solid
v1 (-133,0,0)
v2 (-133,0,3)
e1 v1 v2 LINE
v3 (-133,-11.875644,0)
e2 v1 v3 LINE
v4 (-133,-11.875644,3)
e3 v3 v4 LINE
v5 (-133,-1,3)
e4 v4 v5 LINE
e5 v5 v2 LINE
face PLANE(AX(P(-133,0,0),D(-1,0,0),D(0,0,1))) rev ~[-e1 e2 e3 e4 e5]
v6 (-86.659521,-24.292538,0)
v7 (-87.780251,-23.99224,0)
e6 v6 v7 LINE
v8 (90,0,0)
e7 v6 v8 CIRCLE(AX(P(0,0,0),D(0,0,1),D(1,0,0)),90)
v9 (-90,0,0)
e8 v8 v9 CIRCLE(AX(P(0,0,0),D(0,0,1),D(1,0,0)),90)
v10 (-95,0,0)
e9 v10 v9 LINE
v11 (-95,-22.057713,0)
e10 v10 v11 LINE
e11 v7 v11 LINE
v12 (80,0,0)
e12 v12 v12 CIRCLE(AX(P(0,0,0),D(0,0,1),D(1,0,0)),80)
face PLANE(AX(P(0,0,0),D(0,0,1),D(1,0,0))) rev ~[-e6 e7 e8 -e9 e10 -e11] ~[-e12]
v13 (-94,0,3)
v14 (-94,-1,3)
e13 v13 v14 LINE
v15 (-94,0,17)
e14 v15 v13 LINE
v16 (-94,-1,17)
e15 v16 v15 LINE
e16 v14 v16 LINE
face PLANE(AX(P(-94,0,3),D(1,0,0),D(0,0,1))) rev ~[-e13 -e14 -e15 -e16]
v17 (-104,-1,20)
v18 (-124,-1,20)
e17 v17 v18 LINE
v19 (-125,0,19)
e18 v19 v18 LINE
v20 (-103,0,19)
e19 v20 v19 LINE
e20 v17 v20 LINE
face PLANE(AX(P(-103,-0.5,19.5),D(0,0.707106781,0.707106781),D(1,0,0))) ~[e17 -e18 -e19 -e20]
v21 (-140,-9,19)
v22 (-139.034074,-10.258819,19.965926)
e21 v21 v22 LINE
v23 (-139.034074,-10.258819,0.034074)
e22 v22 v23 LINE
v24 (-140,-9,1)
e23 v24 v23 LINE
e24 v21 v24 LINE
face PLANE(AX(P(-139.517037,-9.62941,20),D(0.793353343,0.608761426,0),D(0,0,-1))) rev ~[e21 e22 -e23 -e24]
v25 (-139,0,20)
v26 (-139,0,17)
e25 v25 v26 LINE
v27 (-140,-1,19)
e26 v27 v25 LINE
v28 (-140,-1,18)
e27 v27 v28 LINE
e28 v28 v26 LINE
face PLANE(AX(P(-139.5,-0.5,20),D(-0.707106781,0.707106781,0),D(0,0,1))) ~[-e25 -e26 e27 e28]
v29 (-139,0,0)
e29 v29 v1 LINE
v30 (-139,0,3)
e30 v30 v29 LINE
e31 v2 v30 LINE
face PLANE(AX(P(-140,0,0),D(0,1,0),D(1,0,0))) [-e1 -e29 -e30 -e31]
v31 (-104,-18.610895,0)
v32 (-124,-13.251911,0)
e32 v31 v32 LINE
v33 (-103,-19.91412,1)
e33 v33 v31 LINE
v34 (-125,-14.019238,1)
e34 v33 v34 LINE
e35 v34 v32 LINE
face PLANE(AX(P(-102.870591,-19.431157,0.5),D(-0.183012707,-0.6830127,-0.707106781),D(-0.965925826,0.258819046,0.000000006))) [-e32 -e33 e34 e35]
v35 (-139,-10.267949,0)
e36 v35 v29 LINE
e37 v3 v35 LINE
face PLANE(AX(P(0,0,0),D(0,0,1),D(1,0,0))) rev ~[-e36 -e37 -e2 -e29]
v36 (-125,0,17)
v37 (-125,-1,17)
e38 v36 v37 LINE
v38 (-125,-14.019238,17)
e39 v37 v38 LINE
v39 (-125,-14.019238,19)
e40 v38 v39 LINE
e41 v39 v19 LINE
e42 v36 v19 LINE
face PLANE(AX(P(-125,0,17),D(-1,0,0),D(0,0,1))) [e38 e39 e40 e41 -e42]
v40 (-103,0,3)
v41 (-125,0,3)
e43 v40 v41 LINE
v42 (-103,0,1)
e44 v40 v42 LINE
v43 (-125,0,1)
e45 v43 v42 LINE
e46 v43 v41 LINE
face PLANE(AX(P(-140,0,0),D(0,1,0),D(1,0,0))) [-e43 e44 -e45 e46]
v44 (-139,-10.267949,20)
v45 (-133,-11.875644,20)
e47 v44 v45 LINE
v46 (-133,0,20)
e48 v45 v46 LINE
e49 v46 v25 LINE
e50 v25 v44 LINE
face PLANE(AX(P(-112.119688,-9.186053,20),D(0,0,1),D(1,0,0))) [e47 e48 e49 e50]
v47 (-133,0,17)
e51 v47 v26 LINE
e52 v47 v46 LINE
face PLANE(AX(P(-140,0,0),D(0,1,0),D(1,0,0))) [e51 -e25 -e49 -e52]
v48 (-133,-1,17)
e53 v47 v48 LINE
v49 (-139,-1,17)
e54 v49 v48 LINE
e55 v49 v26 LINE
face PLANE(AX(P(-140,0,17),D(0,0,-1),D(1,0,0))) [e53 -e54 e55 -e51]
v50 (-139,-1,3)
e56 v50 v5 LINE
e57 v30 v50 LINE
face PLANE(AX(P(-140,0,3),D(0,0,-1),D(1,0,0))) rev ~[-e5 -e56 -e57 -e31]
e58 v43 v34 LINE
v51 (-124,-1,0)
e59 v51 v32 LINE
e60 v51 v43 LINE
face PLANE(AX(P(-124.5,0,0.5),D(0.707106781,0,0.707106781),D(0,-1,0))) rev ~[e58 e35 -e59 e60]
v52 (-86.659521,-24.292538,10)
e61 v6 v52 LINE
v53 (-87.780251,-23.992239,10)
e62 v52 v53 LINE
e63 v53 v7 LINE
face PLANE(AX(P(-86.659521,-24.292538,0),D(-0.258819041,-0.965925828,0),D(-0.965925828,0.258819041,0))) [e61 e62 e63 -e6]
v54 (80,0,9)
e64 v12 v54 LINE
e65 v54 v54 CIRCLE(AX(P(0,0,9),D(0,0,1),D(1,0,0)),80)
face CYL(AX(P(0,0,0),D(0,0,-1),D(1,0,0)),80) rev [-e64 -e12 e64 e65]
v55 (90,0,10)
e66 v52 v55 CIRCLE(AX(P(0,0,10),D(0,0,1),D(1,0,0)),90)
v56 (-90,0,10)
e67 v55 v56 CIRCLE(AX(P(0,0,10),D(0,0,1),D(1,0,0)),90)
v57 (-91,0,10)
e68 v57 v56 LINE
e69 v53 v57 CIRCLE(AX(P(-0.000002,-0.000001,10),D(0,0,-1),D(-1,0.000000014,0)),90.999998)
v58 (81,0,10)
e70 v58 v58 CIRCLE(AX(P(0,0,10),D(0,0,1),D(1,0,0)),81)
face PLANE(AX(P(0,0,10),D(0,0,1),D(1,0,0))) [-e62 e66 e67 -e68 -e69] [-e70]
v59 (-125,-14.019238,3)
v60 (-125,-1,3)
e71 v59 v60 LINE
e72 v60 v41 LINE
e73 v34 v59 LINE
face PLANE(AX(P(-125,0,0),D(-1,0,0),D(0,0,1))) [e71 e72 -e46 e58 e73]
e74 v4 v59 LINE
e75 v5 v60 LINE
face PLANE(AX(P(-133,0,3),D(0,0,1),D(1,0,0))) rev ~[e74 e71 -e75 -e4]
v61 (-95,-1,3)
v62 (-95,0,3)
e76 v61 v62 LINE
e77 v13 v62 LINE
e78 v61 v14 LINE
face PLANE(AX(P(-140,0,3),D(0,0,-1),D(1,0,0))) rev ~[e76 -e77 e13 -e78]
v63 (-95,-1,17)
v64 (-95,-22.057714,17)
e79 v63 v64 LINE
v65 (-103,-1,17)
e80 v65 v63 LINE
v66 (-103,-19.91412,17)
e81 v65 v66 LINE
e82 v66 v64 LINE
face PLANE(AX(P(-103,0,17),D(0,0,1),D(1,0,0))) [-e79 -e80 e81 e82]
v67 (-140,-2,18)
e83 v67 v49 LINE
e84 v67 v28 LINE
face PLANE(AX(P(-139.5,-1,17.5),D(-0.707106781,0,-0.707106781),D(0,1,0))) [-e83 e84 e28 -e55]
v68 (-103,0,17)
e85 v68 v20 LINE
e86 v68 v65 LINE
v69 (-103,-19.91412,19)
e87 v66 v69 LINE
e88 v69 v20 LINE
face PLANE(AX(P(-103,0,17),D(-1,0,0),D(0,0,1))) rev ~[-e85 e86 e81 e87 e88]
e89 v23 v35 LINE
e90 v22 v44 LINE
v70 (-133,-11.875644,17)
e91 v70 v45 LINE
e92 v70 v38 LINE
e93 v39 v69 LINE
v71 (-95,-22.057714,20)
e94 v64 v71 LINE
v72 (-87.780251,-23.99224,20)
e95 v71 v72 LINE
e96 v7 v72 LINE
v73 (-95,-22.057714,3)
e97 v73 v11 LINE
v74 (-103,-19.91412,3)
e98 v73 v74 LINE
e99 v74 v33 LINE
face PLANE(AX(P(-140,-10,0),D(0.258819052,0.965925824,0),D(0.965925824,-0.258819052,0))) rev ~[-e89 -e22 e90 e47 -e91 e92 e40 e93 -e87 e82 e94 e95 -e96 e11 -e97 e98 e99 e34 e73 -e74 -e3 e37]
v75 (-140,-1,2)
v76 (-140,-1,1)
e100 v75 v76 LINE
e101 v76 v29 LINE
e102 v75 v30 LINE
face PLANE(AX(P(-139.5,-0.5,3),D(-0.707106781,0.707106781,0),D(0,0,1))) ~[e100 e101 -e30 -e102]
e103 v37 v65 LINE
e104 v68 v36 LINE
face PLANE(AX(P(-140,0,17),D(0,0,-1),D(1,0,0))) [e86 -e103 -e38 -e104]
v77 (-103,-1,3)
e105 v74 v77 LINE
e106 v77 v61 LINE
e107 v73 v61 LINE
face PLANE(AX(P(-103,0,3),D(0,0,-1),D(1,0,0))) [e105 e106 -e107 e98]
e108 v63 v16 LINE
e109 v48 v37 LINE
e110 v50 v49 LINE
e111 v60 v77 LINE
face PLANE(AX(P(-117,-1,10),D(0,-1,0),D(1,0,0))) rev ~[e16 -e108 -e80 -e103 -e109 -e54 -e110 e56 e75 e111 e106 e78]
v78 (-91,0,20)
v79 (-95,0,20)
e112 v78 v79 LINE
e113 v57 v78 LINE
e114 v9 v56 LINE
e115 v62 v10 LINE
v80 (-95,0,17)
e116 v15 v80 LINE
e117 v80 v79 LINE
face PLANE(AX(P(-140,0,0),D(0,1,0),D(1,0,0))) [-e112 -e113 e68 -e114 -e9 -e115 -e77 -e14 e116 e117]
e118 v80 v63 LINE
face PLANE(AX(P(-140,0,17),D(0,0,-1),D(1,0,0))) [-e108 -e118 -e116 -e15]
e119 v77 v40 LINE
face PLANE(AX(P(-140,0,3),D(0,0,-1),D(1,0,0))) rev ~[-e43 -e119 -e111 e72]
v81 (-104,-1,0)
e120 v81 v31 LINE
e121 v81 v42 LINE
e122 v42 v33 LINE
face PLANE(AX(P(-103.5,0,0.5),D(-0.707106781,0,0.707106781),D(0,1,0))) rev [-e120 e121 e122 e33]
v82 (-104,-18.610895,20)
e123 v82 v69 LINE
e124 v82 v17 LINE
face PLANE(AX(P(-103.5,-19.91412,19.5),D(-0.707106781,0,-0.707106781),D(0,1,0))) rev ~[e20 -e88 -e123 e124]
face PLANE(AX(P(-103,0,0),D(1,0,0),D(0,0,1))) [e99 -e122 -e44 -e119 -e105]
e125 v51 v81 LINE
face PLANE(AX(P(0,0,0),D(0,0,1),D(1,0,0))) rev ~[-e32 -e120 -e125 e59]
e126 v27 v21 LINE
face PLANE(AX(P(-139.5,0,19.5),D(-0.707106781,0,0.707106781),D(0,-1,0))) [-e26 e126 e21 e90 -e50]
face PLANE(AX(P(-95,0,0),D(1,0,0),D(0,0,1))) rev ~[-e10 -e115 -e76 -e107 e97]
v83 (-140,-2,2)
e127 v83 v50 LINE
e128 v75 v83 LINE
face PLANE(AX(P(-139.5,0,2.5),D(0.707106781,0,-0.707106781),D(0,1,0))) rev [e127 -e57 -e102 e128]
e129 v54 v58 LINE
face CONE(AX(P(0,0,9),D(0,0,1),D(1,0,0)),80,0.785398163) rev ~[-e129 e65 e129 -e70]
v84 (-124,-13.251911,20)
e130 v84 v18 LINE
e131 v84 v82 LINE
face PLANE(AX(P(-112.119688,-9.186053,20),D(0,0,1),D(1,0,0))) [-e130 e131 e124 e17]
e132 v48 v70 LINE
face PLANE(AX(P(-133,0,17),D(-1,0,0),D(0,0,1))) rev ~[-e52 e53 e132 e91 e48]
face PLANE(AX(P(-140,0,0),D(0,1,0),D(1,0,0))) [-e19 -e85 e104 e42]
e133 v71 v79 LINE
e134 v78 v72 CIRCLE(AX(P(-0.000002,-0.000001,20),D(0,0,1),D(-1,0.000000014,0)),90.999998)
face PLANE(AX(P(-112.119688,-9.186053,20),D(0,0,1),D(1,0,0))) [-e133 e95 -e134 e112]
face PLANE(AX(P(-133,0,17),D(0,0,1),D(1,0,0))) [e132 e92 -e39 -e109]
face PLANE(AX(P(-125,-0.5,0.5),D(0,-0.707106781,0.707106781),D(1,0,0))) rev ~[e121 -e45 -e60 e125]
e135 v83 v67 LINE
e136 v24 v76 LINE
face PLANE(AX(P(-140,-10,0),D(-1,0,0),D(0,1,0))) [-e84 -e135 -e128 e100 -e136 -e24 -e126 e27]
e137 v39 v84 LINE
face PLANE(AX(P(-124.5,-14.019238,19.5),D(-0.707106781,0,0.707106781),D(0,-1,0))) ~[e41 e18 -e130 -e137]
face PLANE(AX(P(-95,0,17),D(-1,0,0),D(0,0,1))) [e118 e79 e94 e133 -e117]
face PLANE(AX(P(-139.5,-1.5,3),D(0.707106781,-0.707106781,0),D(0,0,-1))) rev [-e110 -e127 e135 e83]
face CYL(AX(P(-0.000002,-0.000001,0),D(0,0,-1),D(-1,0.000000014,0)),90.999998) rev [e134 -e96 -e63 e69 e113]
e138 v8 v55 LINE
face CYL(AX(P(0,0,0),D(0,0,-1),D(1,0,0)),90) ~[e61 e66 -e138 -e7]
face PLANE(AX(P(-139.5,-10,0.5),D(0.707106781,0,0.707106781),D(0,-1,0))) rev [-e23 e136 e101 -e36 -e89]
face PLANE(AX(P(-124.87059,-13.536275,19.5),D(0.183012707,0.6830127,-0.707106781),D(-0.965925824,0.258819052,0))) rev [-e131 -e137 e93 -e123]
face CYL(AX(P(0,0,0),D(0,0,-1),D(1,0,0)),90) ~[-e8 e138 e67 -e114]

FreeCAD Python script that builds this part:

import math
import FreeCAD as App
import Part
import Sketcher
from FreeCAD import Vector
Q = App.Units.Quantity


def edges_at(feature, points):
    """Names of the edges that pass closest to the given points."""
    edges = feature.Shape.Edges
    near = lambda p: min(range(len(edges)), key=lambda i: edges[i].distToShape(Part.Vertex(*p))[0])
    return sorted({f"Edge{near(p) + 1}" for p in points})

doc = App.newDocument("Part")
params = doc.addObject("Spreadsheet::Sheet", "Params")
for row, (alias, value) in enumerate([
    ("sketch1_diameter", "180 mm"),
    ("sketch1_diameter2", "160 mm"),
    ("pad1_length", "10 mm"),
    ("sketch2_width", "50 mm"),
    ("sketch2_height", "10 mm"),
    ("pad2_length", "10 mm"),
    ("sketch3_width", "49 mm"),
    ("sketch3_height", "10 mm"),
    ("pad3_length", "20 mm"),
    ("sketch4_width", "8 mm"),
    ("sketch4_height", "3 mm"),
    ("pocket1_length", "52 mm"),
    ("sketch5_width", "46 mm"),
    ("sketch5_height", "14 mm"),
    ("pocket2_length", "2 mm"),
    ("chamfer_size", "1 mm"),
    ("chamfer2_size", "1 mm"),
    ("chamfer3_size", "1 mm"),
    ("chamfer4_size", "1 mm"),
], start=1):
    params.set(f"A{row}", alias)
    params.set(f"B{row}", "=" + value)
    params.setAlias(f"B{row}", alias)

body = doc.addObject("PartDesign::Body", "Body")

# Sketch on XY plane
sketch1 = body.newObject("Sketcher::SketchObject", "Sketch")
sketch1.AttachmentSupport = (doc.getObject("XY_Plane"), [""])
sketch1.MapMode = "FlatFace"
sketch1.addGeometry(Part.Circle(Vector(0, 0, 0), Vector(0, 0, 1), 90), False)
sketch1.addGeometry(Part.Circle(Vector(0, 0, 0), Vector(0, 0, 1), 80), False)
sketch1.addConstraint(Sketcher.Constraint("Coincident", 0, 3, -1, 1))
sketch1.addConstraint(Sketcher.Constraint("Coincident", 1, 3, -1, 1))
sketch1.addConstraint(Sketcher.Constraint("Diameter", 0, Q("180 mm")))
sketch1.addConstraint(Sketcher.Constraint("Diameter", 1, Q("160 mm")))
sketch1.setExpression("Constraints[2]", "Params.sketch1_diameter")
sketch1.setExpression("Constraints[3]", "Params.sketch1_diameter2")
pad1 = body.newObject("PartDesign::Pad", "Pad")
pad1.Profile = sketch1
pad1.setExpression("Length", "Params.pad1_length")

# Sketch on XY plane
sketch2 = body.newObject("Sketcher::SketchObject", "Sketch001")
sketch2.AttachmentSupport = (doc.getObject("XY_Plane"), [""])
sketch2.MapMode = "FlatFace"
sketch2.addGeometry(Part.LineSegment(Vector(-140, -10, 0), Vector(-86.659521, -24.292538, 0)), False)
sketch2.addGeometry(Part.ArcOfCircle(Part.Circle(Vector(0.000027, 0.000004, 0), Vector(0, 0, 1), 90.000027), math.radians(-179.999997), math.radians(-164.340669)), False)
sketch2.addGeometry(Part.LineSegment(Vector(-90, 0, 0), Vector(-140, 0, 0)), False)
sketch2.addGeometry(Part.LineSegment(Vector(-140, 0, 0), Vector(-140, -10, 0)), False)
sketch2.addConstraint(Sketcher.Constraint("Coincident", 0, 2, 1, 2))
sketch2.addConstraint(Sketcher.Constraint("Coincident", 1, 1, 2, 1))
sketch2.addConstraint(Sketcher.Constraint("Coincident", 2, 2, 3, 1))
sketch2.addConstraint(Sketcher.Constraint("Coincident", 3, 2, 0, 1))
sketch2.addConstraint(Sketcher.Constraint("Horizontal", 2))
sketch2.addConstraint(Sketcher.Constraint("Vertical", 3))
sketch2.addConstraint(Sketcher.Constraint("PointOnObject", 1, 1, -1))
sketch2.addConstraint(Sketcher.Constraint("DistanceX", 2, 2, 2, 1, Q("50 mm")))
sketch2.addConstraint(Sketcher.Constraint("DistanceY", 3, 2, 3, 1, Q("10 mm")))
sketch2.addConstraint(Sketcher.Constraint("Angle", 0, Q("-15 deg")))
sketch2.addConstraint(Sketcher.Constraint("DistanceX", 1, 1, -1, 1, Q("90 mm")))
sketch2.addConstraint(Sketcher.Constraint("Radius", 1, Q("90.000027 mm")))
sketch2.addConstraint(Sketcher.Constraint("DistanceX", 0, 2, -1, 1, Q("86.659521 mm")))
sketch2.setExpression("Constraints[7]", "Params.sketch2_width")
sketch2.setExpression("Constraints[8]", "Params.sketch2_height")
pad2 = body.newObject("PartDesign::Pad", "Pad001")
pad2.Profile = sketch2
pad2.setExpression("Length", "Params.pad2_length")

# Sketch on XY plane
sketch3 = body.newObject("Sketcher::SketchObject", "Sketch002")
sketch3.AttachmentSupport = (doc.getObject("XY_Plane"), [""])
sketch3.MapMode = "FlatFace"
sketch3.addGeometry(Part.LineSegment(Vector(-91, 0, 0), Vector(-140, 0, 0)), False)
sketch3.addGeometry(Part.LineSegment(Vector(-140, 0, 0), Vector(-140, -10, 0)), False)
sketch3.addGeometry(Part.LineSegment(Vector(-140, -10, 0), Vector(-87.780251, -23.99224, 0)), False)
sketch3.addGeometry(Part.ArcOfCircle(Part.Circle(Vector(-0.000002, -0.000001, 0), Vector(0, 0, 1), 90.999998), math.radians(179.999999), math.radians(195.286809)), False)
sketch3.addConstraint(Sketcher.Constraint("Coincident", 0, 2, 1, 1))
sketch3.addConstraint(Sketcher.Constraint("Coincident", 1, 2, 2, 1))
sketch3.addConstraint(Sketcher.Constraint("Coincident", 2, 2, 3, 2))
sketch3.addConstraint(Sketcher.Constraint("Coincident", 3, 1, 0, 1))
sketch3.addConstraint(Sketcher.Constraint("Horizontal", 0))
sketch3.addConstraint(Sketcher.Constraint("Vertical", 1))
sketch3.addConstraint(Sketcher.Constraint("Coincident", 3, 3, -1, 1))
sketch3.addConstraint(Sketcher.Constraint("PointOnObject", 0, 2, -1))
sketch3.addConstraint(Sketcher.Constraint("DistanceX", 0, 2, 0, 1, Q("49 mm")))
sketch3.addConstraint(Sketcher.Constraint("DistanceY", 1, 2, 1, 1, Q("10 mm")))
sketch3.addConstraint(Sketcher.Constraint("Angle", 2, Q("-15 deg")))
sketch3.addConstraint(Sketcher.Constraint("DistanceX", 0, 2, -1, 1, Q("140 mm")))
sketch3.setExpression("Constraints[8]", "Params.sketch3_width")
sketch3.setExpression("Constraints[9]", "Params.sketch3_height")
pad3 = body.newObject("PartDesign::Pad", "Pad002")
pad3.Profile = sketch3
pad3.setExpression("Length", "Params.pad3_length")

# Sketch on XZ plane
sketch4 = body.newObject("Sketcher::SketchObject", "Sketch003")
sketch4.AttachmentSupport = (doc.getObject("XZ_Plane"), [""])
sketch4.MapMode = "FlatFace"
sketch4.addGeometry(Part.LineSegment(Vector(-133, 20, 0), Vector(-133, 17, 0)), False)
sketch4.addGeometry(Part.LineSegment(Vector(-133, 17, 0), Vector(-125, 17, 0)), False)
sketch4.addGeometry(Part.LineSegment(Vector(-125, 17, 0), Vector(-125, 20, 0)), False)
sketch4.addGeometry(Part.LineSegment(Vector(-125, 20, 0), Vector(-133, 20, 0)), False)
sketch4.addGeometry(Part.LineSegment(Vector(-103, 20, 0), Vector(-103, 17, 0)), False)
sketch4.addGeometry(Part.LineSegment(Vector(-103, 17, 0), Vector(-95, 17, 0)), False)
sketch4.addGeometry(Part.LineSegment(Vector(-95, 17, 0), Vector(-95, 20, 0)), False)
sketch4.addGeometry(Part.LineSegment(Vector(-95, 20, 0), Vector(-103, 20, 0)), False)
sketch4.addGeometry(Part.LineSegment(Vector(-133, 3, 0), Vector(-133, 0, 0)), False)
sketch4.addGeometry(Part.LineSegment(Vector(-133, 0, 0), Vector(-125, 0, 0)), False)
sketch4.addGeometry(Part.LineSegment(Vector(-125, 0, 0), Vector(-125, 3, 0)), False)
sketch4.addGeometry(Part.LineSegment(Vector(-125, 3, 0), Vector(-133, 3, 0)), False)
sketch4.addGeometry(Part.LineSegment(Vector(-103, 3, 0), Vector(-103, 0, 0)), False)
sketch4.addGeometry(Part.LineSegment(Vector(-103, 0, 0), Vector(-95, 0, 0)), False)
sketch4.addGeometry(Part.LineSegment(Vector(-95, 0, 0), Vector(-95, 3, 0)), False)
sketch4.addGeometry(Part.LineSegment(Vector(-95, 3, 0), Vector(-103, 3, 0)), False)
sketch4.addConstraint(Sketcher.Constraint("Coincident", 0, 2, 1, 1))
sketch4.addConstraint(Sketcher.Constraint("Coincident", 1, 2, 2, 1))
sketch4.addConstraint(Sketcher.Constraint("Coincident", 2, 2, 3, 1))
sketch4.addConstraint(Sketcher.Constraint("Coincident", 3, 2, 0, 1))
sketch4.addConstraint(Sketcher.Constraint("Coincident", 4, 2, 5, 1))
sketch4.addConstraint(Sketcher.Constraint("Coincident", 5, 2, 6, 1))
sketch4.addConstraint(Sketcher.Constraint("Coincident", 6, 2, 7, 1))
sketch4.addConstraint(Sketcher.Constraint("Coincident", 7, 2, 4, 1))
sketch4.addConstraint(Sketcher.Constraint("Coincident", 8, 2, 9, 1))
sketch4.addConstraint(Sketcher.Constraint("Coincident", 9, 2, 10, 1))
sketch4.addConstraint(Sketcher.Constraint("Coincident", 10, 2, 11, 1))
sketch4.addConstraint(Sketcher.Constraint("Coincident", 11, 2, 8, 1))
sketch4.addConstraint(Sketcher.Constraint("Coincident", 12, 2, 13, 1))
sketch4.addConstraint(Sketcher.Constraint("Coincident", 13, 2, 14, 1))
sketch4.addConstraint(Sketcher.Constraint("Coincident", 14, 2, 15, 1))
sketch4.addConstraint(Sketcher.Constraint("Coincident", 15, 2, 12, 1))
sketch4.addConstraint(Sketcher.Constraint("Vertical", 0))
sketch4.addConstraint(Sketcher.Constraint("Horizontal", 1))
sketch4.addConstraint(Sketcher.Constraint("Vertical", 2))
sketch4.addConstraint(Sketcher.Constraint("Horizontal", 3))
sketch4.addConstraint(Sketcher.Constraint("Vertical", 4))
sketch4.addConstraint(Sketcher.Constraint("Horizontal", 5))
sketch4.addConstraint(Sketcher.Constraint("Vertical", 6))
sketch4.addConstraint(Sketcher.Constraint("Horizontal", 7))
sketch4.addConstraint(Sketcher.Constraint("Vertical", 8))
sketch4.addConstraint(Sketcher.Constraint("Horizontal", 9))
sketch4.addConstraint(Sketcher.Constraint("Vertical", 10))
sketch4.addConstraint(Sketcher.Constraint("Horizontal", 11))
sketch4.addConstraint(Sketcher.Constraint("Vertical", 12))
sketch4.addConstraint(Sketcher.Constraint("Horizontal", 13))
sketch4.addConstraint(Sketcher.Constraint("Vertical", 14))
sketch4.addConstraint(Sketcher.Constraint("Horizontal", 15))
sketch4.addConstraint(Sketcher.Constraint("PointOnObject", 8, 2, -1))
sketch4.addConstraint(Sketcher.Constraint("PointOnObject", 12, 2, -1))
sketch4.addConstraint(Sketcher.Constraint("Horizontal", 1, 2, 4, 2))
sketch4.addConstraint(Sketcher.Constraint("Horizontal", 3, 2, 6, 2))
sketch4.addConstraint(Sketcher.Constraint("Horizontal", 11, 2, 14, 2))
sketch4.addConstraint(Sketcher.Constraint("Vertical", 3, 2, 8, 2))
sketch4.addConstraint(Sketcher.Constraint("Vertical", 2, 2, 9, 2))
sketch4.addConstraint(Sketcher.Constraint("Vertical", 7, 2, 12, 2))
sketch4.addConstraint(Sketcher.Constraint("Vertical", 6, 2, 13, 2))
sketch4.addConstraint(Sketcher.Constraint("Equal", 3, 5))
sketch4.addConstraint(Sketcher.Constraint("Equal", 6, 8))
sketch4.addConstraint(Sketcher.Constraint("DistanceX", 1, 1, 1, 2, Q("8 mm")))
sketch4.addConstraint(Sketcher.Constraint("DistanceY", 0, 2, 0, 1, Q("3 mm")))
sketch4.addConstraint(Sketcher.Constraint("DistanceX", 0, 2, -1, 1, Q("133 mm")))
sketch4.addConstraint(Sketcher.Constraint("DistanceY", -1, 1, 0, 2, Q("17 mm")))
sketch4.addConstraint(Sketcher.Constraint("DistanceX", 4, 2, -1, 1, Q("103 mm")))
sketch4.setExpression("Constraints[43]", "Params.sketch4_width")
sketch4.setExpression("Constraints[44]", "Params.sketch4_height")
pocket1 = body.newObject("PartDesign::Pocket", "Pocket")
pocket1.Profile = sketch4
pocket1.setExpression("Length", "Params.pocket1_length")
pocket1.Midplane = True

# Sketch on XZ plane
sketch5 = body.newObject("Sketcher::SketchObject", "Sketch004")
sketch5.AttachmentSupport = (doc.getObject("XZ_Plane"), [""])
sketch5.MapMode = "FlatFace"
sketch5.addGeometry(Part.LineSegment(Vector(-140, 17, 0), Vector(-140, 3, 0)), False)
sketch5.addGeometry(Part.LineSegment(Vector(-140, 3, 0), Vector(-94, 3, 0)), False)
sketch5.addGeometry(Part.LineSegment(Vector(-94, 3, 0), Vector(-94, 17, 0)), False)
sketch5.addGeometry(Part.LineSegment(Vector(-94, 17, 0), Vector(-140, 17, 0)), False)
sketch5.addConstraint(Sketcher.Constraint("Coincident", 0, 2, 1, 1))
sketch5.addConstraint(Sketcher.Constraint("Coincident", 1, 2, 2, 1))
sketch5.addConstraint(Sketcher.Constraint("Coincident", 2, 2, 3, 1))
sketch5.addConstraint(Sketcher.Constraint("Coincident", 3, 2, 0, 1))
sketch5.addConstraint(Sketcher.Constraint("Vertical", 0))
sketch5.addConstraint(Sketcher.Constraint("Horizontal", 1))
sketch5.addConstraint(Sketcher.Constraint("Vertical", 2))
sketch5.addConstraint(Sketcher.Constraint("Horizontal", 3))
sketch5.addConstraint(Sketcher.Constraint("DistanceX", 1, 1, 1, 2, Q("46 mm")))
sketch5.addConstraint(Sketcher.Constraint("DistanceY", 0, 2, 0, 1, Q("14 mm")))
sketch5.addConstraint(Sketcher.Constraint("DistanceX", 0, 2, -1, 1, Q("140 mm")))
sketch5.addConstraint(Sketcher.Constraint("DistanceY", -1, 1, 0, 2, Q("3 mm")))
sketch5.setExpression("Constraints[8]", "Params.sketch5_width")
sketch5.setExpression("Constraints[9]", "Params.sketch5_height")
pocket2 = body.newObject("PartDesign::Pocket", "Pocket001")
pocket2.Profile = sketch5
pocket2.setExpression("Length", "Params.pocket2_length")
pocket2.Midplane = True
doc.recompute()

chamfer = body.newObject("PartDesign::Chamfer", "Chamfer")
chamfer.Base = (pocket2, edges_at(pocket2, [(-80, 0, 10)]))
chamfer.setExpression("Size", "Params.chamfer_size")
doc.recompute()

chamfer2 = body.newObject("PartDesign::Chamfer", "Chamfer001")
chamfer2.Base = (chamfer, edges_at(chamfer, [
    (-140, -10, 10),
    (-140, -5, 20),
    (-140, 0, 18.5),
    (-140, -0.5, 17),
    (-140, -1, 10),
    (-140, -10, 10),
    (-140, -5, 0),
    (-140, 0, 1.5),
    (-140, -0.5, 3),
    (-140, -1, 10),
    (-140, -10, 10),
]))
chamfer2.setExpression("Size", "Params.chamfer2_size")
doc.recompute()

chamfer3 = body.newObject("PartDesign::Chamfer", "Chamfer002")
chamfer3.Base = (chamfer2, edges_at(chamfer2, [
    (-103, -9.957, 20),
    (-114, -16.967, 20),
    (-125, -7.01, 20),
    (-114, 0, 20),
]))
chamfer3.setExpression("Size", "Params.chamfer3_size")
doc.recompute()

chamfer4 = body.newObject("PartDesign::Chamfer", "Chamfer003")
chamfer4.Base = (chamfer3, edges_at(chamfer3, [
    (-114, 0, 0),
    (-125, -7.01, 0),
    (-114, -16.967, 0),
    (-103, -9.957, 0),
]))
chamfer4.setExpression("Size", "Params.chamfer4_size")

doc.recompute()
